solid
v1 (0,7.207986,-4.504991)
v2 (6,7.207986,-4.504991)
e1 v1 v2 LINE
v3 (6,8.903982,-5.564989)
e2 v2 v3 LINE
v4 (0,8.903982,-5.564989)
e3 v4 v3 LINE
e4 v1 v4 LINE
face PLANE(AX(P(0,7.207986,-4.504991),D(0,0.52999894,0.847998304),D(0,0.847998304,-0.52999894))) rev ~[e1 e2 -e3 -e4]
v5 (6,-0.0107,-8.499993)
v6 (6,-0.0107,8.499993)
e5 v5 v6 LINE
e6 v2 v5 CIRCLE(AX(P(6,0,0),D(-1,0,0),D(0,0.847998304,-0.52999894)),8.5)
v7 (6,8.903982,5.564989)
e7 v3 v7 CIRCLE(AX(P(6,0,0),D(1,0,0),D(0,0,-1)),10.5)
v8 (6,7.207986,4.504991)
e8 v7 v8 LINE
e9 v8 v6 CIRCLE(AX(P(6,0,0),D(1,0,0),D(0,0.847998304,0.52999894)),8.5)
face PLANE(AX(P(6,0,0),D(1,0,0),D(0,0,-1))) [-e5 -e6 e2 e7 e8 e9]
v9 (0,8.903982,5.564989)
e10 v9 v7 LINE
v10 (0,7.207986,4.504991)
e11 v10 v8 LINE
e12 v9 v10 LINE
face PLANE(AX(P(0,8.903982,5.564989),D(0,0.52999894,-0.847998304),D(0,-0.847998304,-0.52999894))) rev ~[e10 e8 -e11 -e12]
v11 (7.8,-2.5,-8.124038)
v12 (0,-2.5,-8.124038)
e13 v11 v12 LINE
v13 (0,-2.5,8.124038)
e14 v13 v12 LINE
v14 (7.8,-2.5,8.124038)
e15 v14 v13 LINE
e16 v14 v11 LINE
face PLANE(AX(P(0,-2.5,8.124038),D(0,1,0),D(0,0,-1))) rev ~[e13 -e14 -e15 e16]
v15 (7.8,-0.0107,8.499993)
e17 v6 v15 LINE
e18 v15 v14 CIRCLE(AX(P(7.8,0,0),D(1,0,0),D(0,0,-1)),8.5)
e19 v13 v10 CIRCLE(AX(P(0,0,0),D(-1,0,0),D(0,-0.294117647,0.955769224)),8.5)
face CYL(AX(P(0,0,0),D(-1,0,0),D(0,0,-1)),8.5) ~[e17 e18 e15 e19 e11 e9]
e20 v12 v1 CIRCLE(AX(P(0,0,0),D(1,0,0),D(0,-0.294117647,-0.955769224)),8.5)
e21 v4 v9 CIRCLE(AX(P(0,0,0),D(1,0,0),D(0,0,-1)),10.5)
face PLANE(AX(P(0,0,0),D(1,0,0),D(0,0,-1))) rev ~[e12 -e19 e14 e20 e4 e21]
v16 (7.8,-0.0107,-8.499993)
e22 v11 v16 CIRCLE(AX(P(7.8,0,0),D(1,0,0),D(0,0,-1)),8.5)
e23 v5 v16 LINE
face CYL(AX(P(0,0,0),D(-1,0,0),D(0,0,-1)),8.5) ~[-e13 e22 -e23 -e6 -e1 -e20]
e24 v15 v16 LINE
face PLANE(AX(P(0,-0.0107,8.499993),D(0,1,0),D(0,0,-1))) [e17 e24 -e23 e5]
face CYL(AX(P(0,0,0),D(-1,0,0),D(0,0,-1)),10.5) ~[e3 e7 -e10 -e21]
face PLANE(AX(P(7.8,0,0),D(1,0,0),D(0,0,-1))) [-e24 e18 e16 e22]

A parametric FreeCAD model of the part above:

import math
import FreeCAD as App
import Part
import Sketcher

V = App.Vector
Q = App.Units.Quantity

doc = App.newDocument("Part")
body = doc.addObject("PartDesign::Body", "Body")

# Sketch on YZ plane
sketch1 = body.newObject("Sketcher::SketchObject", "Sketch")
sketch1.AttachmentSupport = (doc.getObject("YZ_Plane"), [""])
sketch1.MapMode = "FlatFace"
sketch1.addGeometry([
    Part.LineSegment(V(7.2, -4.5, 0), V(8.9, -5.6, 0)),  # 0
    Part.ArcOfCircle(Part.Circle(V(0, 0, 0), V(0, 0, 1), 10.5), math.radians(-32), math.radians(32)),  # 1
    Part.LineSegment(V(8.9, 5.6, 0), V(7.2, 4.5, 0)),  # 2
    Part.ArcOfCircle(Part.Circle(V(0, 0, 0), V(0, 0, 1), 8.5), math.radians(32), math.radians(107)),  # 3
    Part.LineSegment(V(-2.5, 8.1, 0), V(-2.5, -8.1, 0)),  # 4
    Part.ArcOfCircle(Part.Circle(V(0, 0, 0), V(0, 0, 1), 8.5), math.radians(-107), math.radians(-32)),  # 5
], False)
sketch1.addConstraint([
    Sketcher.Constraint("Coincident", 0, 2, 1, 1),
    Sketcher.Constraint("Coincident", 1, 2, 2, 1),
    Sketcher.Constraint("Coincident", 2, 2, 3, 1),
    Sketcher.Constraint("Coincident", 3, 2, 4, 1),
    Sketcher.Constraint("Coincident", 4, 2, 5, 1),
    Sketcher.Constraint("Coincident", 5, 2, 0, 1),
    Sketcher.Constraint("Vertical", 4),
    Sketcher.Constraint("Coincident", 1, 3, -1, 1),
    Sketcher.Constraint("Coincident", 3, 3, -1, 1),
    Sketcher.Constraint("Coincident", 5, 3, -1, 1),
    Sketcher.Constraint("Equal", 3, 5),
    Sketcher.Constraint("Vertical", 0, 2, 1, 2),
    Sketcher.Constraint("Vertical", 2, 2, 5, 2),
    Sketcher.Constraint("Radius", 1, Q("10.5 mm")),
    Sketcher.Constraint("Radius", 3, Q("8.5 mm")),
    Sketcher.Constraint("DistanceX", 3, 2, -1, 1, Q("2.5 mm")),
    Sketcher.Constraint("DistanceY", 0, 2, 1, 2, Q("11.13 mm")),
    Sketcher.Constraint("DistanceY", 2, 2, 1, 2, Q("1.06 mm")),
])
pad1 = body.newObject("PartDesign::Pad", "Pad")
pad1.Profile = sketch1
pad1.Length = 6

# Sketch on YZ plane
sketch2 = body.newObject("Sketcher::SketchObject", "Sketch001")
sketch2.AttachmentSupport = (doc.getObject("YZ_Plane"), [""])
sketch2.MapMode = "FlatFace"
sketch2.addGeometry([
    Part.ArcOfCircle(Part.Circle(V(0, 0, 0), V(0, 0, 1), 8.5), math.radians(-107.1), math.radians(-90.07)),
    Part.LineSegment(V(0, -8.5, 0), V(0, 8.5, 0)),
    Part.ArcOfCircle(Part.Circle(V(0, 0, 0), V(0, 0, 1), 8.5), math.radians(90.07), math.radians(107.1)),
    Part.LineSegment(V(-2.5, 8.1, 0), V(-2.5, -8.1, 0)),
], False)
sketch2.addConstraint([
    Sketcher.Constraint("Coincident", 0, 2, 1, 1),
    Sketcher.Constraint("Coincident", 1, 2, 2, 1),
    Sketcher.Constraint("Coincident", 2, 2, 3, 1),
    Sketcher.Constraint("Coincident", 3, 2, 0, 1),
    Sketcher.Constraint("Vertical", 1),
    Sketcher.Constraint("Vertical", 3),
    Sketcher.Constraint("Coincident", 0, 3, -1, 1),
    Sketcher.Constraint("Coincident", 2, 3, -1, 1),
    Sketcher.Constraint("Equal", 0, 2),
    Sketcher.Constraint("Radius", 0, Q("8.5 mm")),
    Sketcher.Constraint("DistanceX", 2, 2, -1, 1, Q("2.5 mm")),
    Sketcher.Constraint("DistanceX", 0, 2, -1, 1, Q("0.0107 mm")),
])
pad2 = body.newObject("PartDesign::Pad", "Pad001")
pad2.Profile = sketch2
pad2.Length = 7.8

doc.recompute()
